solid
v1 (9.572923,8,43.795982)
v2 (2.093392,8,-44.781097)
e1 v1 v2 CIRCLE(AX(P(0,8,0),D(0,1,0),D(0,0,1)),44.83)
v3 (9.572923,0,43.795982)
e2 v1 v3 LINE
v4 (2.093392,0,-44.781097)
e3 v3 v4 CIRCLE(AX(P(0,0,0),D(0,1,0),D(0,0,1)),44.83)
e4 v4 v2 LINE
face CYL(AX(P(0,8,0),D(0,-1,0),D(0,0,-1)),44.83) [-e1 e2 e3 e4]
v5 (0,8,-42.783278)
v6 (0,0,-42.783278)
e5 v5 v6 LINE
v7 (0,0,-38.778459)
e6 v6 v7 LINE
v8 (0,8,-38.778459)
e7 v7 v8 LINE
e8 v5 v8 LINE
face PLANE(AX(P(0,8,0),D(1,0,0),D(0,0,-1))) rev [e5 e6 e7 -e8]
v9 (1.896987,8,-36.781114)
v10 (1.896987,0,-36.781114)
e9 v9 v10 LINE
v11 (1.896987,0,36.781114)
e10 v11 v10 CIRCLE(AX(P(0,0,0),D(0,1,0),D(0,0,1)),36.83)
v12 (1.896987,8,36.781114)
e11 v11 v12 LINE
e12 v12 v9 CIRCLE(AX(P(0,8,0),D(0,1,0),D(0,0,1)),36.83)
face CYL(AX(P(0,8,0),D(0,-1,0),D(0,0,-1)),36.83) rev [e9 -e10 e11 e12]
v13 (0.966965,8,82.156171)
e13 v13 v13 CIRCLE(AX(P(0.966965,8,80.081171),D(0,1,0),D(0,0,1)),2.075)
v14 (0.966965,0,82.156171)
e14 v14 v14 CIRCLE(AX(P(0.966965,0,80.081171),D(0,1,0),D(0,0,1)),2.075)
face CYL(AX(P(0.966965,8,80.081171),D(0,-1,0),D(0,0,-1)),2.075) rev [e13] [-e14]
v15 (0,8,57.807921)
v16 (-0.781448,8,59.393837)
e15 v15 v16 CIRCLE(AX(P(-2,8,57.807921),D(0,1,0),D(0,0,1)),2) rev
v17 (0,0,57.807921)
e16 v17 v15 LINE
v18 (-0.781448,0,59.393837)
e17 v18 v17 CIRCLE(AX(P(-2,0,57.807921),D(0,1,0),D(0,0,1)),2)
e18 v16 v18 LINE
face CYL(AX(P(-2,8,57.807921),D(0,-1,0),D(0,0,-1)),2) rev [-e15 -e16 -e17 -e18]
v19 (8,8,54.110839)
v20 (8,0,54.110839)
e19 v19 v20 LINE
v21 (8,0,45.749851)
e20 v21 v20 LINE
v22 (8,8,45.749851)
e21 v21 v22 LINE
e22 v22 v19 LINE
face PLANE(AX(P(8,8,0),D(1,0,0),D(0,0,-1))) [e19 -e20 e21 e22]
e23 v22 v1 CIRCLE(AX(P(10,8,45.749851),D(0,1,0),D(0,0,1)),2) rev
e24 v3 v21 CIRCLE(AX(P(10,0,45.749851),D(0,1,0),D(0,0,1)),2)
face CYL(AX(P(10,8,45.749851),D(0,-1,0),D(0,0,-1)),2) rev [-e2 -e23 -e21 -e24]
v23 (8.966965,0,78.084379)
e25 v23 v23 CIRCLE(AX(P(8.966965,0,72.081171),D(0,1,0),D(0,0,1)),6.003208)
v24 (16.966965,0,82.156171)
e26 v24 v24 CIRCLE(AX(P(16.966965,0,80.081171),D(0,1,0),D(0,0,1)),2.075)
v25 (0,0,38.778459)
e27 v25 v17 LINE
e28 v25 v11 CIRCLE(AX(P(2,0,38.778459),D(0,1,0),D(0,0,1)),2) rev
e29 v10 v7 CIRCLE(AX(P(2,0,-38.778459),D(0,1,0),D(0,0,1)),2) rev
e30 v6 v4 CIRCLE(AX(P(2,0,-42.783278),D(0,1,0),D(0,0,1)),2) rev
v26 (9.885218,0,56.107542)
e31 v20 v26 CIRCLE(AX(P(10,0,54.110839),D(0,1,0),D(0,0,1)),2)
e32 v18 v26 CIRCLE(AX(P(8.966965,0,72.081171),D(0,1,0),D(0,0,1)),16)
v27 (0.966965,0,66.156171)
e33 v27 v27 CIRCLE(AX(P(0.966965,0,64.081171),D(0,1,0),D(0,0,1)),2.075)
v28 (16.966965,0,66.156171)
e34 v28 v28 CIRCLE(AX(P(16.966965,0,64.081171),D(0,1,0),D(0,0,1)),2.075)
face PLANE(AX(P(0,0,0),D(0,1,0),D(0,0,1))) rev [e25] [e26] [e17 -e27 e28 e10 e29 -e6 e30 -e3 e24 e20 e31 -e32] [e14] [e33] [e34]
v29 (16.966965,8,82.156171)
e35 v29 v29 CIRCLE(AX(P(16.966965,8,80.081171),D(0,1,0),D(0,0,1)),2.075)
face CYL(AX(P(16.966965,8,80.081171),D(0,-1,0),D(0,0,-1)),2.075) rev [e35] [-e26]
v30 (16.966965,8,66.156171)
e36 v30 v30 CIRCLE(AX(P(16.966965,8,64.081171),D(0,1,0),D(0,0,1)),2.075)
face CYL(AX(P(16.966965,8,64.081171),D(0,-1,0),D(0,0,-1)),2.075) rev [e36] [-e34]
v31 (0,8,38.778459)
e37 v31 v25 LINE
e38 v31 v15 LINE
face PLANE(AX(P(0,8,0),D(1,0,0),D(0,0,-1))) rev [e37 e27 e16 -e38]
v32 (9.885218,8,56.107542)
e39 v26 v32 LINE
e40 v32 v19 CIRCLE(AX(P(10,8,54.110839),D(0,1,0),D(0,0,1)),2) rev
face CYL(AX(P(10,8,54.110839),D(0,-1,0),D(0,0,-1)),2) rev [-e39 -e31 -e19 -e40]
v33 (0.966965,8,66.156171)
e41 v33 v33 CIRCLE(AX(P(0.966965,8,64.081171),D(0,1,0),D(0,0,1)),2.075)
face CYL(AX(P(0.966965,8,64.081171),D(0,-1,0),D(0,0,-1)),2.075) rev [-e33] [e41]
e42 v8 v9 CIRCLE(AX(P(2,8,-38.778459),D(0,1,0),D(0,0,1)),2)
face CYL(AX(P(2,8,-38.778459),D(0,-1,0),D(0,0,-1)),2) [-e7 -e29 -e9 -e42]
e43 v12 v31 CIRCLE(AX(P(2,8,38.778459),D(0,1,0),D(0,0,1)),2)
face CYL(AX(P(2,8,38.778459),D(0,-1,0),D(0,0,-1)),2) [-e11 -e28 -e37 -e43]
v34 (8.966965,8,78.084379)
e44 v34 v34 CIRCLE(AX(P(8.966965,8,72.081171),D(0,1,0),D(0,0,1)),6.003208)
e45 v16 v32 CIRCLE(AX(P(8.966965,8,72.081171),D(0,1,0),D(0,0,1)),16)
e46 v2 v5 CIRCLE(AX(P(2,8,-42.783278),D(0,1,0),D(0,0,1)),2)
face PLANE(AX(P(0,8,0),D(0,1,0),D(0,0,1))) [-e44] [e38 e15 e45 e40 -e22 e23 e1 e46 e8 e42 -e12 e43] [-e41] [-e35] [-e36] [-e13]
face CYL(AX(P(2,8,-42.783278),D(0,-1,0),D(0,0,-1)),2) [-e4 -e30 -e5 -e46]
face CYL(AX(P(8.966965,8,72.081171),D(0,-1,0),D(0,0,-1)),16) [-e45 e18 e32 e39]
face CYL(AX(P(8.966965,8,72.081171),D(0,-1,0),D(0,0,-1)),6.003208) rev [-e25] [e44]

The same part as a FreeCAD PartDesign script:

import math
import FreeCAD as App
import Part
import Sketcher
from FreeCAD import Vector
Q = App.Units.Quantity


def edges_at(feature, points):
    """Names of the edges that pass closest to the given points."""
    edges = feature.Shape.Edges
    near = lambda p: min(range(len(edges)), key=lambda i: edges[i].distToShape(Part.Vertex(*p))[0])
    return sorted({f"Edge{near(p) + 1}" for p in points})

doc = App.newDocument("Part")
params = doc.addObject("Spreadsheet::Sheet", "Params")
for row, (alias, value) in enumerate([
    ("sketch1_radius", "16 mm"),
    ("sketch1_diameter", "4.15 mm"),
    ("sketch1_height", "8 mm"),
    ("sketch1_height2", "22 mm"),
    ("sketch1_height3", "12 mm"),
    ("pad1_length", "8 mm"),
    ("fillet_radius", "2 mm"),
], start=1):
    params.set(f"A{row}", alias)
    params.set(f"B{row}", "=" + value)
    params.setAlias(f"B{row}", alias)

body = doc.addObject("PartDesign::Body", "Body")

# Sketch on XZ plane
sketch1 = body.newObject("Sketcher::SketchObject", "Sketch")
sketch1.AttachmentSupport = (doc.getObject("XZ_Plane"), [""])
sketch1.MapMode = "FlatFace"
sketch1.addGeometry(Part.LineSegment(Vector(0, -44.8, 0), Vector(0, -36.8, 0)), False)
sketch1.addGeometry(Part.ArcOfCircle(Part.Circle(Vector(0, 0, 0), Vector(0, 0, 1), 36.8), math.radians(-90), math.radians(90)), False)
sketch1.addGeometry(Part.LineSegment(Vector(0, 36.8, 0), Vector(0, 58.8, 0)), False)
sketch1.addGeometry(Part.ArcOfCircle(Part.Circle(Vector(9, 72.1, 0), Vector(0, 0, 1), 16), math.radians(-93), math.radians(236)), False)
sketch1.addGeometry(Part.LineSegment(Vector(8, 56.1, 0), Vector(8, 44.1, 0)), False)
sketch1.addGeometry(Part.ArcOfCircle(Part.Circle(Vector(0, 0, 0), Vector(0, 0, 1), 44.8), math.radians(-90), math.radians(80)), False)
sketch1.addGeometry(Part.Circle(Vector(1, 80.1, 0), Vector(0, 0, 1), 2.1), False)
sketch1.addGeometry(Part.Circle(Vector(9, 72.1, 0), Vector(0, 0, 1), 6), False)
sketch1.addGeometry(Part.Circle(Vector(17, 80.1, 0), Vector(0, 0, 1), 2.1), False)
sketch1.addGeometry(Part.Circle(Vector(1, 64.1, 0), Vector(0, 0, 1), 2.1), False)
sketch1.addGeometry(Part.Circle(Vector(17, 64.1, 0), Vector(0, 0, 1), 2.1), False)
sketch1.addConstraint(Sketcher.Constraint("Coincident", 0, 2, 1, 1))
sketch1.addConstraint(Sketcher.Constraint("Coincident", 1, 2, 2, 1))
sketch1.addConstraint(Sketcher.Constraint("Coincident", 2, 2, 3, 2))
sketch1.addConstraint(Sketcher.Constraint("Coincident", 3, 1, 4, 1))
sketch1.addConstraint(Sketcher.Constraint("Coincident", 4, 2, 5, 2))
sketch1.addConstraint(Sketcher.Constraint("Coincident", 5, 1, 0, 1))
sketch1.addConstraint(Sketcher.Constraint("Vertical", 0))
sketch1.addConstraint(Sketcher.Constraint("Vertical", 2))
sketch1.addConstraint(Sketcher.Constraint("Vertical", 4))
sketch1.addConstraint(Sketcher.Constraint("Coincident", 1, 3, -1, 1))
sketch1.addConstraint(Sketcher.Constraint("Coincident", 5, 3, -1, 1))
sketch1.addConstraint(Sketcher.Constraint("Coincident", 7, 3, 3, 3))
sketch1.addConstraint(Sketcher.Constraint("Equal", 6, 8))
sketch1.addConstraint(Sketcher.Constraint("Equal", 8, 9))
sketch1.addConstraint(Sketcher.Constraint("Equal", 9, 10))
sketch1.addConstraint(Sketcher.Constraint("PointOnObject", 0, 2, -2))
sketch1.addConstraint(Sketcher.Constraint("PointOnObject", 1, 2, -2))
sketch1.addConstraint(Sketcher.Constraint("Horizontal", 6, 3, 8, 3))
sketch1.addConstraint(Sketcher.Constraint("Horizontal", 9, 3, 10, 3))
sketch1.addConstraint(Sketcher.Constraint("Vertical", 6, 3, 9, 3))
sketch1.addConstraint(Sketcher.Constraint("Vertical", 8, 3, 10, 3))
sketch1.addConstraint(Sketcher.Constraint("Radius", 3, Q("16 mm")))
sketch1.addConstraint(Sketcher.Constraint("Diameter", 6, Q("4.15 mm")))
sketch1.addConstraint(Sketcher.Constraint("DistanceY", 0, 1, 0, 2, Q("8 mm")))
sketch1.addConstraint(Sketcher.Constraint("DistanceY", 2, 1, 2, 2, Q("22 mm")))
sketch1.addConstraint(Sketcher.Constraint("DistanceY", 4, 2, 4, 1, Q("12 mm")))
sketch1.addConstraint(Sketcher.Constraint("Radius", 1, Q("36.83 mm")))
sketch1.addConstraint(Sketcher.Constraint("DistanceX", -1, 1, 3, 1, Q("8 mm")))
sketch1.addConstraint(Sketcher.Constraint("DistanceX", 6, 3, 3, 3, Q("8 mm")))
sketch1.addConstraint(Sketcher.Constraint("DistanceY", 3, 3, 6, 3, Q("8 mm")))
sketch1.addConstraint(Sketcher.Constraint("DistanceX", 3, 3, 8, 3, Q("8 mm")))
sketch1.addConstraint(Sketcher.Constraint("DistanceY", 9, 3, 3, 3, Q("8 mm")))
sketch1.addConstraint(Sketcher.Constraint("Diameter", 7, Q("12.006417 mm")))
sketch1.setExpression("Constraints[21]", "Params.sketch1_radius")
sketch1.setExpression("Constraints[22]", "Params.sketch1_diameter")
sketch1.setExpression("Constraints[23]", "Params.sketch1_height")
sketch1.setExpression("Constraints[24]", "Params.sketch1_height2")
sketch1.setExpression("Constraints[25]", "Params.sketch1_height3")
pad1 = body.newObject("PartDesign::Pad", "Pad")
pad1.Profile = sketch1
pad1.setExpression("Length", "Params.pad1_length")
pad1.Reversed = True
doc.recompute()

fillet = body.newObject("PartDesign::Fillet", "Fillet")
fillet.Base = (pad1, edges_at(pad1, [
    (0, 4, 58.83),
    (0, 4, 36.83),
    (0, 4, -36.83),
    (0, 4, -44.83),
    (8, 4, 44.11),
    (8, 4, 56.11),
]))
fillet.setExpression("Radius", "Params.fillet_radius")

doc.recompute()
